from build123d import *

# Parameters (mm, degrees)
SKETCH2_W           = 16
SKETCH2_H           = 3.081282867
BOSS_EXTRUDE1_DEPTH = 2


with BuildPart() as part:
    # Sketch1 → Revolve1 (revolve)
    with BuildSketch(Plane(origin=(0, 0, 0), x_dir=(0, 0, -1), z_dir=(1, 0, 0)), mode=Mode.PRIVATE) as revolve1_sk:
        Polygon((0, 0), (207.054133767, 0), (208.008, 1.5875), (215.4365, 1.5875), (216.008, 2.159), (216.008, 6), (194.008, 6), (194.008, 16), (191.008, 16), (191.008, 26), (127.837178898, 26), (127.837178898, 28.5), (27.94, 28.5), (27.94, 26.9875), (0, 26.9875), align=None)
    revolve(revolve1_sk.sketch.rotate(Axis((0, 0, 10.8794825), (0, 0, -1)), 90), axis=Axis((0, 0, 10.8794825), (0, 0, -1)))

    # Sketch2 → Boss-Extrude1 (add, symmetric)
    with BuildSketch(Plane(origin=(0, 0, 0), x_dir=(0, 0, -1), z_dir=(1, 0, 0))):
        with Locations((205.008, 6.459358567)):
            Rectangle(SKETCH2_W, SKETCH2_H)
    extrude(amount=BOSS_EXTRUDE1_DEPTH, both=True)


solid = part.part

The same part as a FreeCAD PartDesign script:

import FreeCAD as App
import Part
import Sketcher
Q = App.Units.Quantity


def add_polygon(sketch, points):
    """Adds a closed chain of lines whose ends are joined by coincident constraints."""
    first, n = sketch.GeometryCount, len(points)
    for a, b in zip(points, points[1:] + points[:1]):
        sketch.addGeometry(Part.LineSegment(App.Vector(*a, 0), App.Vector(*b, 0)), False)
    for i in range(n):
        sketch.addConstraint(Sketcher.Constraint("Coincident", first + i, 2, first + (i + 1) % n, 1))

doc = App.newDocument("Part")
params = doc.addObject("Spreadsheet::Sheet", "Params")
for row, (alias, value) in enumerate([
    ("sketch1_width", "10 mm"),
    ("sketch1_height", "22 mm"),
    ("sketch1_height2", "3 mm"),
    ("sketch1_width2", "2.5 mm"),
    ("sketch1_height3", "27.94 mm"),
    ("revolution_angle", "360 deg"),
    ("sketch2_height", "16 mm"),
    ("pad1_length", "4 mm"),
], start=1):
    params.set(f"A{row}", alias)
    params.set(f"B{row}", "=" + value)
    params.setAlias(f"B{row}", alias)

body = doc.addObject("PartDesign::Body", "Body")

sketch1 = doc.addObject("Sketcher::SketchObject", "Sketch")
body.addObject(sketch1)
sketch1.AttachmentSupport = (doc.YZ_Plane, [""])
sketch1.MapMode = "FlatFace"
add_polygon(sketch1, [(0, 0), (0, -207.1), (1.6, -208), (1.6, -215.4), (2.2, -216), (6, -216), (6, -194), (16, -194), (16, -191), (26, -191), (26, -127.8), (28.5, -127.8), (28.5, -27.9), (27, -27.9), (27, 0)])
sketch1.addConstraint(Sketcher.Constraint("Vertical", 0))
sketch1.addConstraint(Sketcher.Constraint("Vertical", 2))
sketch1.addConstraint(Sketcher.Constraint("Horizontal", 4))
sketch1.addConstraint(Sketcher.Constraint("Vertical", 5))
sketch1.addConstraint(Sketcher.Constraint("Horizontal", 6))
sketch1.addConstraint(Sketcher.Constraint("Vertical", 7))
sketch1.addConstraint(Sketcher.Constraint("Horizontal", 8))
sketch1.addConstraint(Sketcher.Constraint("Vertical", 9))
sketch1.addConstraint(Sketcher.Constraint("Horizontal", 10))
sketch1.addConstraint(Sketcher.Constraint("Vertical", 11))
sketch1.addConstraint(Sketcher.Constraint("Horizontal", 12))
sketch1.addConstraint(Sketcher.Constraint("Vertical", 13))
sketch1.addConstraint(Sketcher.Constraint("Horizontal", 14))
sketch1.addConstraint(Sketcher.Constraint("Coincident", 14, 2, -1, 1))
sketch1.addConstraint(Sketcher.Constraint("Equal", 6, 8))
sketch1.addConstraint(Sketcher.Constraint("DistanceX", 6, 1, 6, 2, 10.0))
sketch1.addConstraint(Sketcher.Constraint("DistanceY", 5, 1, 5, 2, 22.0))
sketch1.addConstraint(Sketcher.Constraint("DistanceY", 7, 1, 7, 2, 3.0))
sketch1.addConstraint(Sketcher.Constraint("Angle", 1, Q("-31 deg")))
sketch1.addConstraint(Sketcher.Constraint("Angle", 3, Q("-45 deg")))
sketch1.addConstraint(Sketcher.Constraint("DistanceX", 10, 1, 10, 2, 2.5))
sketch1.addConstraint(Sketcher.Constraint("DistanceX", -1, 1, 4, 2, 6.0))
sketch1.addConstraint(Sketcher.Constraint("DistanceY", 3, 2, 1, 2, 8.0))
sketch1.addConstraint(Sketcher.Constraint("DistanceY", 13, 1, 13, 2, 27.94))
sketch1.addConstraint(Sketcher.Constraint("DistanceX", 4, 1, 4, 2, 3.841))
sketch1.addConstraint(Sketcher.Constraint("DistanceX", 12, 2, 12, 1, 1.5125))
sketch1.addConstraint(Sketcher.Constraint("DistanceY", 2, 2, 2, 1, 7.4285))
sketch1.addConstraint(Sketcher.Constraint("DistanceY", 1, 2, -1, 1, 208.008))
sketch1.addConstraint(Sketcher.Constraint("DistanceY", 9, 1, 9, 2, 63.170821))
sketch1.setExpression("Constraints[30]", "Params.sketch1_width")
sketch1.setExpression("Constraints[31]", "Params.sketch1_height")
sketch1.setExpression("Constraints[32]", "Params.sketch1_height2")
sketch1.setExpression("Constraints[35]", "Params.sketch1_width2")
sketch1.setExpression("Constraints[38]", "Params.sketch1_height3")
revolution = doc.addObject("PartDesign::Revolution", "Revolution")
body.addObject(revolution)
revolution.Profile = sketch1
revolution.ReferenceAxis = (sketch1, ["V_Axis"])
revolution.setExpression("Angle", "Params.revolution_angle")

sketch2 = doc.addObject("Sketcher::SketchObject", "Sketch001")
body.addObject(sketch2)
sketch2.AttachmentSupport = (doc.YZ_Plane, [""])
sketch2.MapMode = "FlatFace"
add_polygon(sketch2, [(8, -197), (4.9, -197), (4.9, -213), (8, -213)])
sketch2.addConstraint(Sketcher.Constraint("Horizontal", 0))
sketch2.addConstraint(Sketcher.Constraint("Vertical", 1))
sketch2.addConstraint(Sketcher.Constraint("Horizontal", 2))
sketch2.addConstraint(Sketcher.Constraint("Vertical", 3))
sketch2.addConstraint(Sketcher.Constraint("DistanceY", 1, 2, 1, 1, 16.0))
sketch2.addConstraint(Sketcher.Constraint("DistanceX", -1, 1, 2, 2, 8.0))
sketch2.addConstraint(Sketcher.Constraint("DistanceY", 0, 2, -1, 1, 197.008))
sketch2.addConstraint(Sketcher.Constraint("DistanceX", 0, 2, 0, 1, 3.081283))
sketch2.setExpression("Constraints[8]", "Params.sketch2_height")
pad1 = doc.addObject("PartDesign::Pad", "Pad")
body.addObject(pad1)
pad1.Profile = sketch2
pad1.setExpression("Length", "Params.pad1_length")
pad1.Midplane = True

doc.recompute()
